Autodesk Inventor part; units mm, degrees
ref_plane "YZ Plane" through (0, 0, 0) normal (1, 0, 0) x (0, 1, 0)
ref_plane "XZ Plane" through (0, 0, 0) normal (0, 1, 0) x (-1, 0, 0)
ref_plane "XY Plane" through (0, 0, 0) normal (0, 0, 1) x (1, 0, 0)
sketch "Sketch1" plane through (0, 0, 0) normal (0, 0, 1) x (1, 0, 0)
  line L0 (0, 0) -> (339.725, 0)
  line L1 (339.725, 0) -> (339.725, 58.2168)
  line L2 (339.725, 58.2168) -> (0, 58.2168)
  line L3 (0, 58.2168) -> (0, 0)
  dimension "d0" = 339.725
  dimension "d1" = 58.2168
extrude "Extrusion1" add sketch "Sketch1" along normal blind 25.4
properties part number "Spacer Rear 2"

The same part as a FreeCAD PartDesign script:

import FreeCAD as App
import Part
import Sketcher
from FreeCAD import Vector
Q = App.Units.Quantity


def add_polygon(sketch, points):
    """Adds a closed chain of lines whose ends are joined by coincident constraints."""
    first, n = sketch.GeometryCount, len(points)
    for a, b in zip(points, points[1:] + points[:1]):
        sketch.addGeometry(Part.LineSegment(App.Vector(*a, 0), App.Vector(*b, 0)), False)
    for i in range(n):
        sketch.addConstraint(Sketcher.Constraint("Coincident", first + i, 2, first + (i + 1) % n, 1))

doc = App.newDocument("Part")
params = doc.addObject("Spreadsheet::Sheet", "Params")
for row, (alias, value) in enumerate([
    ("sketch1_width", "13.375 in"),
    ("sketch1_height", "2.292 in"),
    ("pad1_length", "1 in"),
], start=1):
    params.set(f"A{row}", alias)
    params.set(f"B{row}", "=" + value)
    params.setAlias(f"B{row}", alias)

body = doc.addObject("PartDesign::Body", "Body")

# Sketch on XY plane
sketch1 = doc.addObject("Sketcher::SketchObject", "Sketch")
body.addObject(sketch1)
sketch1.AttachmentSupport = (doc.XY_Plane, [""])
sketch1.MapMode = "FlatFace"
add_polygon(sketch1, [(0, 58.2168), (0, 0), (339.725, 0), (339.725, 58.2168)])  # lines 0-3
sketch1.addConstraint([
    Sketcher.Constraint("Vertical", 0),
    Sketcher.Constraint("Horizontal", 1),
    Sketcher.Constraint("Vertical", 2),
    Sketcher.Constraint("Horizontal", 3),
    Sketcher.Constraint("Coincident", 0, 2, -1, 1),
    Sketcher.Constraint("DistanceX", 1, 1, 1, 2, Q("13.375 in")),
    Sketcher.Constraint("DistanceY", 0, 2, 0, 1, Q("2.292 in")),
])
sketch1.setExpression("Constraints[9]", "Params.sketch1_width")
sketch1.setExpression("Constraints[10]", "Params.sketch1_height")
pad1 = doc.addObject("PartDesign::Pad", "Pad")
body.addObject(pad1)
pad1.Profile = sketch1
pad1.setExpression("Length", "Params.pad1_length")

doc.recompute()
